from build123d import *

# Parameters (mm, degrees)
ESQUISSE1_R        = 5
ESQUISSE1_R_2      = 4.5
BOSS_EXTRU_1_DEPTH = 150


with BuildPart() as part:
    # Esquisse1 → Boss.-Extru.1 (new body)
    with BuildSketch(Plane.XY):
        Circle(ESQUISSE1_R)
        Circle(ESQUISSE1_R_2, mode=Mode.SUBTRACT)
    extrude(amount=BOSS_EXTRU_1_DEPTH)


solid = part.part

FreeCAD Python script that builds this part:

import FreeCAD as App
import Part
import Sketcher
Q = App.Units.Quantity

doc = App.newDocument("Part")
body = doc.addObject("PartDesign::Body", "Body")

# Sketch on XY plane
sketch1 = body.newObject("Sketcher::SketchObject", "Sketch")
sketch1.AttachmentSupport = (doc.getObject("XY_Plane"), [""])
sketch1.MapMode = "FlatFace"
sketch1.addGeometry([
    Part.Circle(App.Vector(0, 0, 0), App.Vector(0, 0, 1), 5),
    Part.Circle(App.Vector(0, 0, 0), App.Vector(0, 0, 1), 4.5),
], False)
sketch1.addConstraint([
    Sketcher.Constraint("Coincident", 0, 3, -1, 1),
    Sketcher.Constraint("Coincident", 1, 3, -1, 1),
    Sketcher.Constraint("Diameter", 0, Q("10 mm")),
    Sketcher.Constraint("Diameter", 1, Q("9 mm")),
])
pad1 = body.newObject("PartDesign::Pad", "Pad")
pad1.Profile = sketch1
pad1.Length = 150

doc.recompute()
